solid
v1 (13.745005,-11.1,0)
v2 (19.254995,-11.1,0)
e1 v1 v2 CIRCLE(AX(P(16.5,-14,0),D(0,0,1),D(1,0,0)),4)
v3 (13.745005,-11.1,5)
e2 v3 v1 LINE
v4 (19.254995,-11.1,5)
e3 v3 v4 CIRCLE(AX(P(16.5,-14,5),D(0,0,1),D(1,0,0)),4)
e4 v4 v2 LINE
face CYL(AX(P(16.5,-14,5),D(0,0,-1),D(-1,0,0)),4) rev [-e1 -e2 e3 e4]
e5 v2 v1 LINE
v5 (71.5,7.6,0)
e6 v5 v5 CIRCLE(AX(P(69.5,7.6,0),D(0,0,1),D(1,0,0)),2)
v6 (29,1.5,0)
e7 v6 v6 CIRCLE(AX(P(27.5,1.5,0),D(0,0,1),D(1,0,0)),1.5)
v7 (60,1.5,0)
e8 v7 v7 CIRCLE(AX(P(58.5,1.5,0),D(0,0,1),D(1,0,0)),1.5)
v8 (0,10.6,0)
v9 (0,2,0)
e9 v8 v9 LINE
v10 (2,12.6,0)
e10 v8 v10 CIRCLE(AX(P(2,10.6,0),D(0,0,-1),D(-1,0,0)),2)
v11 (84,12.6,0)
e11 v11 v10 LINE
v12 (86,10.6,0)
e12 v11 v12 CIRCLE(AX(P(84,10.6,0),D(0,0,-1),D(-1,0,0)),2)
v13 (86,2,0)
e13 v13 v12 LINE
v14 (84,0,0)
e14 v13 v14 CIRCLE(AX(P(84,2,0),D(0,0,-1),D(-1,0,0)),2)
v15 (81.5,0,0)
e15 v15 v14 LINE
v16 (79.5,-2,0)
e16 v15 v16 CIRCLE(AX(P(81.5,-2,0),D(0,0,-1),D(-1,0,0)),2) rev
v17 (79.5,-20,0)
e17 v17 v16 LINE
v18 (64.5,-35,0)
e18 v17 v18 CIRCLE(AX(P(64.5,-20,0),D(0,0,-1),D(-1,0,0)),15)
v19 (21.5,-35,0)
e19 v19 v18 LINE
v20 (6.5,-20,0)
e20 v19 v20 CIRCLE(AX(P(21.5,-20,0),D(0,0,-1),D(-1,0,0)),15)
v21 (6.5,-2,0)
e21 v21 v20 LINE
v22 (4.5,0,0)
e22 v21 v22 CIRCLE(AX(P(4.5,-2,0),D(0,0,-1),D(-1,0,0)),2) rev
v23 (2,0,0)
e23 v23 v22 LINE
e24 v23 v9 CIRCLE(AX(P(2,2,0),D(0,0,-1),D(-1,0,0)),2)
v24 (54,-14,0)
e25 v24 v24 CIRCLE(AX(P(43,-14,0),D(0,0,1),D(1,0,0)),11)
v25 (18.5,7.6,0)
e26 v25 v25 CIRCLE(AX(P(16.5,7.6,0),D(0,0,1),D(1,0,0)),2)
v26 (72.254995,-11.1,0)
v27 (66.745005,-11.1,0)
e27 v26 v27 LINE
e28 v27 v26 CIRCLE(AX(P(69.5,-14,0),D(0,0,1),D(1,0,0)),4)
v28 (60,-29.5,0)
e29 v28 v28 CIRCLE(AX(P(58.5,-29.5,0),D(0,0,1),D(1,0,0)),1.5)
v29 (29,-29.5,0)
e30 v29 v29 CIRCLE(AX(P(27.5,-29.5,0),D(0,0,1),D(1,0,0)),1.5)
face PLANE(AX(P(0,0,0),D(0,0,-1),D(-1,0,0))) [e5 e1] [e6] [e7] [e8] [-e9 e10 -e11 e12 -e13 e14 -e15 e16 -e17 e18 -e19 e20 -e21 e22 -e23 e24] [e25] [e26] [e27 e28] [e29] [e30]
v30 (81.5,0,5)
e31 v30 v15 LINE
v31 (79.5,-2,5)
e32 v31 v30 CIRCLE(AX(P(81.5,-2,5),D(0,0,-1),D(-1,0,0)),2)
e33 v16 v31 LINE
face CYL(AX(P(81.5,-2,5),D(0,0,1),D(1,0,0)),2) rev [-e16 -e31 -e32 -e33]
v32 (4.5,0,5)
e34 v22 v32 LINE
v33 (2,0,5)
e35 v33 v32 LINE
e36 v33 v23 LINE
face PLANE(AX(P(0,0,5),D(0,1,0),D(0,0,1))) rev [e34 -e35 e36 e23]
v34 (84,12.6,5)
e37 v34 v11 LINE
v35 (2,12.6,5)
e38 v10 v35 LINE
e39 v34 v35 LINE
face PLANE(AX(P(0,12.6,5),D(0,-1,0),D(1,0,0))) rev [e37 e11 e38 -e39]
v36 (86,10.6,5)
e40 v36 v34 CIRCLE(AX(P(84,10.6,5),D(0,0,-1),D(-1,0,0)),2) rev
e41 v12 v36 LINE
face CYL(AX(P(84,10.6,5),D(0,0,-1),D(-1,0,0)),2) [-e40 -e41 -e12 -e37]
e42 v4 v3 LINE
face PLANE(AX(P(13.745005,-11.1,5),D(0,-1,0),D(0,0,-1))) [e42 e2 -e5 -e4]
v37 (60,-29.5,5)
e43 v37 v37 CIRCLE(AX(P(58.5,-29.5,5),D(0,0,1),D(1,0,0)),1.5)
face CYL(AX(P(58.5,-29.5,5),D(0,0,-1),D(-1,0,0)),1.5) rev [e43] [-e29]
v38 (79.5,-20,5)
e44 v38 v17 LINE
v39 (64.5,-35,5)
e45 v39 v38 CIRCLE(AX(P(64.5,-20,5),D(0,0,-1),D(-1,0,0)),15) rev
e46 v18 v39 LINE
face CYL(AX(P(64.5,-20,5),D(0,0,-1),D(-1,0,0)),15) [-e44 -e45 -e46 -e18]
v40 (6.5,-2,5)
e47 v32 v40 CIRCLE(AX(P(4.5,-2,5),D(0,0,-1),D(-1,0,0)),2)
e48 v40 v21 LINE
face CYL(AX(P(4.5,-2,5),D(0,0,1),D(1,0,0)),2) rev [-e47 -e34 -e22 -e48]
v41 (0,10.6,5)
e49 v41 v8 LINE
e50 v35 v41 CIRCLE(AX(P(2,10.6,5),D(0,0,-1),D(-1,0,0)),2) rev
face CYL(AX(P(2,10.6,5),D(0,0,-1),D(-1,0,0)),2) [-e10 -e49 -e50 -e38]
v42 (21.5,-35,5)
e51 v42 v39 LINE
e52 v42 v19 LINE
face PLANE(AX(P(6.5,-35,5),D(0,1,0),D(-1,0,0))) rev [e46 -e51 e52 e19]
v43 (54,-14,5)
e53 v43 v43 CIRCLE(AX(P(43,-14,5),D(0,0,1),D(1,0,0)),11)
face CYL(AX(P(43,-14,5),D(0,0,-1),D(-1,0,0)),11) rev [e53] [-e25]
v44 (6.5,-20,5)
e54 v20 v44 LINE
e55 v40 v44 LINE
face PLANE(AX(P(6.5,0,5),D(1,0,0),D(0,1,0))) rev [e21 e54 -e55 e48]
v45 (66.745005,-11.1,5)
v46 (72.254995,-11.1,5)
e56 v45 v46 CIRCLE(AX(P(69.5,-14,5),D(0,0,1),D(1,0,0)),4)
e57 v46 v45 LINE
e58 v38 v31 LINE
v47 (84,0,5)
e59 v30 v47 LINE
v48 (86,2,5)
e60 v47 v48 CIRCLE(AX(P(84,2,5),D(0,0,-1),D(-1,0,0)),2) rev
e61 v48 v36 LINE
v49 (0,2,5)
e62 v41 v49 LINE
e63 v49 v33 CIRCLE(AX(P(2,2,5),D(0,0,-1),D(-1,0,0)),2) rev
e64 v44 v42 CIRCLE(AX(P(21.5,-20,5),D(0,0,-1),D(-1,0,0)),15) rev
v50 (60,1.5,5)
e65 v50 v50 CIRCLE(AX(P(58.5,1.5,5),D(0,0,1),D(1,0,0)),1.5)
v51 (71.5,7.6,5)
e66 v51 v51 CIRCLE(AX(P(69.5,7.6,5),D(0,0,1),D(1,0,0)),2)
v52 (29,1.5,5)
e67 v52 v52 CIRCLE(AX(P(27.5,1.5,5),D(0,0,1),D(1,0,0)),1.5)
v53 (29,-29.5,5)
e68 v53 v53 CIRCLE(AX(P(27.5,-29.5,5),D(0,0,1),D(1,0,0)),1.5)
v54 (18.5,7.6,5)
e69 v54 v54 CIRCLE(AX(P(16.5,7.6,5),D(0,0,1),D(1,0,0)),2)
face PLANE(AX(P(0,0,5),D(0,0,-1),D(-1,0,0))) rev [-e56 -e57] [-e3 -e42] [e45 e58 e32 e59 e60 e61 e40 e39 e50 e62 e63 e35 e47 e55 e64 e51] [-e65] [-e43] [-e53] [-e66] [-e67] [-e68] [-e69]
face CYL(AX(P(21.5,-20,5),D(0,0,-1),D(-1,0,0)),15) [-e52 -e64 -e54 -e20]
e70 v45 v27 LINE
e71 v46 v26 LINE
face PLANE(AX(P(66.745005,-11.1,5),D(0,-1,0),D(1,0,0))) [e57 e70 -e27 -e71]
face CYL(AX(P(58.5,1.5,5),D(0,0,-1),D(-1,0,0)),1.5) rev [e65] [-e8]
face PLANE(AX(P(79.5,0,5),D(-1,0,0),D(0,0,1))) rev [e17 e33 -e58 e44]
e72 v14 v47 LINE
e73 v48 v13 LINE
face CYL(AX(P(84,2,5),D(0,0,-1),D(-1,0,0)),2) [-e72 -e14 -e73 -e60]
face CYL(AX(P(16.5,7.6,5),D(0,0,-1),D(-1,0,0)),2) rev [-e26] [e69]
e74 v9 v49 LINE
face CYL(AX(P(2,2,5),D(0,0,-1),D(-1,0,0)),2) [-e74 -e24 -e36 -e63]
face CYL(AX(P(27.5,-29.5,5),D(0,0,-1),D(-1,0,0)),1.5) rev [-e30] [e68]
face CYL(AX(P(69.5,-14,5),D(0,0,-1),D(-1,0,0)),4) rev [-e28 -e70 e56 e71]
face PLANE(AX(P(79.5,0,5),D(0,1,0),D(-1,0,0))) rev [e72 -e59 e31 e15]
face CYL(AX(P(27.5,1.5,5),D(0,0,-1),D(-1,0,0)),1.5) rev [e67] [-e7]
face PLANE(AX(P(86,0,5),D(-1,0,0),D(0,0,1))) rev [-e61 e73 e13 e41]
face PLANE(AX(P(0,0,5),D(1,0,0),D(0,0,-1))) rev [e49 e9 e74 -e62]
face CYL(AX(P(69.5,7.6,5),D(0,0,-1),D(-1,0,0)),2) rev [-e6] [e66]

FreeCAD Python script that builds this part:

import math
import FreeCAD as App
import Part
import Sketcher
from FreeCAD import Vector


def edges_at(feature, points):
    """Names of the edges that pass closest to the given points."""
    edges = feature.Shape.Edges
    near = lambda p: min(range(len(edges)), key=lambda i: edges[i].distToShape(Part.Vertex(*p))[0])
    return sorted({f"Edge{near(p) + 1}" for p in points})


def add_polygon(sketch, points):
    """Adds a closed chain of lines whose ends are joined by coincident constraints."""
    first, n = sketch.GeometryCount, len(points)
    for a, b in zip(points, points[1:] + points[:1]):
        sketch.addGeometry(Part.LineSegment(App.Vector(*a, 0), App.Vector(*b, 0)), False)
    for i in range(n):
        sketch.addConstraint(Sketcher.Constraint("Coincident", first + i, 2, first + (i + 1) % n, 1))

doc = App.newDocument("Part")
body = doc.addObject("PartDesign::Body", "Body")

sketch1 = body.newObject("Sketcher::SketchObject", "Sketch")
sketch1.AttachmentSupport = (doc.getObject("XY_Plane"), [""])
sketch1.MapMode = "FlatFace"
add_polygon(sketch1, [(0, 0), (6.5, 0), (6.5, -35), (79.5, -35), (79.5, 0), (86, 0), (86, 12.6), (0, 12.6)])
sketch1.addGeometry(Part.Circle(Vector(27.5, -29.5, 0), Vector(0, 0, 1), 1.5), False)
sketch1.addGeometry(Part.ArcOfCircle(Part.Circle(Vector(16.5, -14, 0), Vector(0, 0, 1), 4), math.radians(133.531152), math.radians(406.468848)), False)
sketch1.addGeometry(Part.LineSegment(Vector(13.745005, -11.1, 0), Vector(19.254995, -11.1, 0)), False)
sketch1.addGeometry(Part.Circle(Vector(58.5, -29.5, 0), Vector(0, 0, 1), 1.5), False)
sketch1.addGeometry(Part.Circle(Vector(43, -14, 0), Vector(0, 0, 1), 11), False)
sketch1.addGeometry(Part.ArcOfCircle(Part.Circle(Vector(69.5, -14, 0), Vector(0, 0, 1), 4), math.radians(133.531152), math.radians(406.468848)), False)
sketch1.addGeometry(Part.LineSegment(Vector(66.745005, -11.1, 0), Vector(72.254995, -11.1, 0)), False)
sketch1.addGeometry(Part.Circle(Vector(27.5, 1.5, 0), Vector(0, 0, 1), 1.5), False)
sketch1.addGeometry(Part.Circle(Vector(16.5, 7.6, 0), Vector(0, 0, 1), 2), False)
sketch1.addGeometry(Part.Circle(Vector(58.5, 1.5, 0), Vector(0, 0, 1), 1.5), False)
sketch1.addGeometry(Part.Circle(Vector(69.5, 7.6, 0), Vector(0, 0, 1), 2), False)
sketch1.addConstraint([
    Sketcher.Constraint("Coincident", 9, 1, 10, 1),
    Sketcher.Constraint("Coincident", 10, 2, 9, 2),
    Sketcher.Constraint("Coincident", 13, 1, 14, 1),
    Sketcher.Constraint("Coincident", 14, 2, 13, 2),
    Sketcher.Constraint("Horizontal", 0),
    Sketcher.Constraint("Vertical", 1),
    Sketcher.Constraint("Horizontal", 2),
    Sketcher.Constraint("Vertical", 3),
    Sketcher.Constraint("Horizontal", 4),
    Sketcher.Constraint("Vertical", 5),
    Sketcher.Constraint("Horizontal", 6),
    Sketcher.Constraint("Vertical", 7),
    Sketcher.Constraint("Horizontal", 10),
    Sketcher.Constraint("Horizontal", 14),
    Sketcher.Constraint("Coincident", 7, 2, -1, 1),
    Sketcher.Constraint("Equal", 8, 11),
    Sketcher.Constraint("Equal", 9, 13),
    Sketcher.Constraint("Equal", 11, 15),
    Sketcher.Constraint("Equal", 15, 17),
    Sketcher.Constraint("Equal", 16, 18),
    Sketcher.Constraint("PointOnObject", 3, 2, -1),
    Sketcher.Constraint("Horizontal", 8, 3, 11, 3),
    Sketcher.Constraint("Horizontal", 9, 3, 12, 3),
    Sketcher.Constraint("Horizontal", 12, 3, 13, 3),
    Sketcher.Constraint("Horizontal", 15, 3, 17, 3),
    Sketcher.Constraint("Horizontal", 16, 3, 18, 3),
    Sketcher.Constraint("Horizontal", 10, 2, 13, 1),
    Sketcher.Constraint("Vertical", 8, 3, 15, 3),
    Sketcher.Constraint("Vertical", 9, 3, 16, 3),
    Sketcher.Constraint("Vertical", 11, 3, 17, 3),
    Sketcher.Constraint("Vertical", 13, 3, 18, 3),
    Sketcher.Constraint("Equal", 0, 4),
    Sketcher.Constraint("Diameter", 8, 3.0),
    Sketcher.Constraint("Diameter", 12, 22.0),
    Sketcher.Constraint("Diameter", 16, 4.0),
    Sketcher.Constraint("Radius", 9, 4.0),
    Sketcher.Constraint("DistanceX", 2, 1, 2, 2, 73.0),
    Sketcher.Constraint("DistanceX", 6, 2, 6, 1, 86.0),
    Sketcher.Constraint("DistanceY", 1, 2, 1, 1, 35.0),
    Sketcher.Constraint("DistanceY", 5, 1, 5, 2, 12.6),
    Sketcher.Constraint("DistanceY", 9, 3, -1, 1, 14.0),
    Sketcher.Constraint("DistanceX", -1, 1, 12, 3, 43.0),
    Sketcher.Constraint("DistanceX", 9, 3, 8, 3, 11.0),
    Sketcher.Constraint("DistanceX", 8, 3, 11, 3, 31.0),
    Sketcher.Constraint("DistanceX", 11, 3, 13, 3, 11.0),
    Sketcher.Constraint("DistanceY", 8, 3, 15, 3, 31.0),
    Sketcher.Constraint("DistanceX", 0, 2, 16, 3, 10.0),
    Sketcher.Constraint("DistanceY", 18, 3, 5, 2, 5.0),
    Sketcher.Constraint("DistanceY", 8, 3, -1, 1, 29.5),
    Sketcher.Constraint("DistanceY", 9, 1, -1, 1, 11.1),
])
pad1 = body.newObject("PartDesign::Pad", "Pad")
pad1.Profile = sketch1
pad1.Length = 5
doc.recompute()

fillet = body.newObject("PartDesign::Fillet", "Fillet")
fillet.Base = (pad1, edges_at(pad1, [
    (0, 12.6, 2.5),
    (86, 12.6, 2.5),
    (86, 0, 2.5),
    (79.5, 0, 2.5),
    (6.5, 0, 2.5),
    (0, 0, 2.5),
]))
fillet.Radius = 2
doc.recompute()

fillet2 = body.newObject("PartDesign::Fillet", "Fillet001")
fillet2.Base = (fillet, edges_at(fillet, [(79.5, -35, 2.5), (6.5, -35, 2.5)]))
fillet2.Radius = 15

doc.recompute()
